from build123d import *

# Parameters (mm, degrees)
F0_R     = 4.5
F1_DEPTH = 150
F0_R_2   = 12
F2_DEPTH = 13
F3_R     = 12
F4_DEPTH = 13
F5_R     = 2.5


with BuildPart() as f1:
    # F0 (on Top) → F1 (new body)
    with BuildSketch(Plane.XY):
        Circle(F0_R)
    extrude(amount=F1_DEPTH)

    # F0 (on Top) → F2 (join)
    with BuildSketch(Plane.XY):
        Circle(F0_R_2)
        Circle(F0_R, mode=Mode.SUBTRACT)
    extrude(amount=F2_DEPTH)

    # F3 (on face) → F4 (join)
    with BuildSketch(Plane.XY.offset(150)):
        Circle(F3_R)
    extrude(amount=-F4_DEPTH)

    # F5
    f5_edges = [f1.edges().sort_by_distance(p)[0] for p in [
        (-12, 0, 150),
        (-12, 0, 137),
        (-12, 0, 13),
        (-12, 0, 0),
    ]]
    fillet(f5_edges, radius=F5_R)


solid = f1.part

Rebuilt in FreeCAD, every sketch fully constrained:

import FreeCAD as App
import Part
import Sketcher
from FreeCAD import Vector
Q = App.Units.Quantity


def edges_at(feature, points):
    """Names of the edges that pass closest to the given points."""
    edges = feature.Shape.Edges
    near = lambda p: min(range(len(edges)), key=lambda i: edges[i].distToShape(Part.Vertex(*p))[0])
    return sorted({f"Edge{near(p) + 1}" for p in points})

doc = App.newDocument("Part")
body = doc.addObject("PartDesign::Body", "Body")

sketch1 = body.newObject("Sketcher::SketchObject", "Sketch")
sketch1.AttachmentSupport = (doc.getObject("XY_Plane"), [""])
sketch1.MapMode = "FlatFace"
sketch1.addGeometry(Part.Circle(Vector(0, 0, 0), Vector(0, 0, 1), 4.5), False)
sketch1.addConstraint(Sketcher.Constraint("Coincident", 0, 3, -1, 1))
sketch1.addConstraint(Sketcher.Constraint("Diameter", 0, Q("9 mm")))
pad1 = body.newObject("PartDesign::Pad", "Pad")
pad1.Profile = sketch1
pad1.Length = 150

sketch2 = body.newObject("Sketcher::SketchObject", "Sketch001")
sketch2.AttachmentSupport = (doc.getObject("XY_Plane"), [""])
sketch2.MapMode = "FlatFace"
sketch2.addGeometry(Part.Circle(Vector(0, 0, 0), Vector(0, 0, 1), 12), False)
sketch2.addGeometry(Part.Circle(Vector(0, 0, 0), Vector(0, 0, 1), 4.5), False)
sketch2.addConstraint(Sketcher.Constraint("Coincident", 0, 3, -1, 1))
sketch2.addConstraint(Sketcher.Constraint("Coincident", 1, 3, -1, 1))
sketch2.addConstraint(Sketcher.Constraint("Diameter", 0, Q("24 mm")))
sketch2.addConstraint(Sketcher.Constraint("Diameter", 1, Q("9 mm")))
pad2 = body.newObject("PartDesign::Pad", "Pad001")
pad2.Profile = sketch2
pad2.Length = 13

sketch3 = body.newObject("Sketcher::SketchObject", "Sketch002")
sketch3.AttachmentSupport = (doc.getObject("XY_Plane"), [""])
sketch3.MapMode = "FlatFace"
sketch3.AttachmentOffset = App.Placement(Vector(0, 0, 150), App.Rotation())
sketch3.addGeometry(Part.Circle(Vector(0, 0, 0), Vector(0, 0, 1), 12), False)
sketch3.addConstraint(Sketcher.Constraint("Coincident", 0, 3, -1, 1))
sketch3.addConstraint(Sketcher.Constraint("Diameter", 0, Q("24 mm")))
pad3 = body.newObject("PartDesign::Pad", "Pad002")
pad3.Profile = sketch3
pad3.Length = 13
pad3.Reversed = True
doc.recompute()

fillet = body.newObject("PartDesign::Fillet", "Fillet")
fillet.Base = (pad3, edges_at(pad3, [
    (-12, 0, 150),
    (-12, 0, 137),
    (-12, 0, 13),
    (-12, 0, 0),
]))
fillet.Radius = 2.5

doc.recompute()
